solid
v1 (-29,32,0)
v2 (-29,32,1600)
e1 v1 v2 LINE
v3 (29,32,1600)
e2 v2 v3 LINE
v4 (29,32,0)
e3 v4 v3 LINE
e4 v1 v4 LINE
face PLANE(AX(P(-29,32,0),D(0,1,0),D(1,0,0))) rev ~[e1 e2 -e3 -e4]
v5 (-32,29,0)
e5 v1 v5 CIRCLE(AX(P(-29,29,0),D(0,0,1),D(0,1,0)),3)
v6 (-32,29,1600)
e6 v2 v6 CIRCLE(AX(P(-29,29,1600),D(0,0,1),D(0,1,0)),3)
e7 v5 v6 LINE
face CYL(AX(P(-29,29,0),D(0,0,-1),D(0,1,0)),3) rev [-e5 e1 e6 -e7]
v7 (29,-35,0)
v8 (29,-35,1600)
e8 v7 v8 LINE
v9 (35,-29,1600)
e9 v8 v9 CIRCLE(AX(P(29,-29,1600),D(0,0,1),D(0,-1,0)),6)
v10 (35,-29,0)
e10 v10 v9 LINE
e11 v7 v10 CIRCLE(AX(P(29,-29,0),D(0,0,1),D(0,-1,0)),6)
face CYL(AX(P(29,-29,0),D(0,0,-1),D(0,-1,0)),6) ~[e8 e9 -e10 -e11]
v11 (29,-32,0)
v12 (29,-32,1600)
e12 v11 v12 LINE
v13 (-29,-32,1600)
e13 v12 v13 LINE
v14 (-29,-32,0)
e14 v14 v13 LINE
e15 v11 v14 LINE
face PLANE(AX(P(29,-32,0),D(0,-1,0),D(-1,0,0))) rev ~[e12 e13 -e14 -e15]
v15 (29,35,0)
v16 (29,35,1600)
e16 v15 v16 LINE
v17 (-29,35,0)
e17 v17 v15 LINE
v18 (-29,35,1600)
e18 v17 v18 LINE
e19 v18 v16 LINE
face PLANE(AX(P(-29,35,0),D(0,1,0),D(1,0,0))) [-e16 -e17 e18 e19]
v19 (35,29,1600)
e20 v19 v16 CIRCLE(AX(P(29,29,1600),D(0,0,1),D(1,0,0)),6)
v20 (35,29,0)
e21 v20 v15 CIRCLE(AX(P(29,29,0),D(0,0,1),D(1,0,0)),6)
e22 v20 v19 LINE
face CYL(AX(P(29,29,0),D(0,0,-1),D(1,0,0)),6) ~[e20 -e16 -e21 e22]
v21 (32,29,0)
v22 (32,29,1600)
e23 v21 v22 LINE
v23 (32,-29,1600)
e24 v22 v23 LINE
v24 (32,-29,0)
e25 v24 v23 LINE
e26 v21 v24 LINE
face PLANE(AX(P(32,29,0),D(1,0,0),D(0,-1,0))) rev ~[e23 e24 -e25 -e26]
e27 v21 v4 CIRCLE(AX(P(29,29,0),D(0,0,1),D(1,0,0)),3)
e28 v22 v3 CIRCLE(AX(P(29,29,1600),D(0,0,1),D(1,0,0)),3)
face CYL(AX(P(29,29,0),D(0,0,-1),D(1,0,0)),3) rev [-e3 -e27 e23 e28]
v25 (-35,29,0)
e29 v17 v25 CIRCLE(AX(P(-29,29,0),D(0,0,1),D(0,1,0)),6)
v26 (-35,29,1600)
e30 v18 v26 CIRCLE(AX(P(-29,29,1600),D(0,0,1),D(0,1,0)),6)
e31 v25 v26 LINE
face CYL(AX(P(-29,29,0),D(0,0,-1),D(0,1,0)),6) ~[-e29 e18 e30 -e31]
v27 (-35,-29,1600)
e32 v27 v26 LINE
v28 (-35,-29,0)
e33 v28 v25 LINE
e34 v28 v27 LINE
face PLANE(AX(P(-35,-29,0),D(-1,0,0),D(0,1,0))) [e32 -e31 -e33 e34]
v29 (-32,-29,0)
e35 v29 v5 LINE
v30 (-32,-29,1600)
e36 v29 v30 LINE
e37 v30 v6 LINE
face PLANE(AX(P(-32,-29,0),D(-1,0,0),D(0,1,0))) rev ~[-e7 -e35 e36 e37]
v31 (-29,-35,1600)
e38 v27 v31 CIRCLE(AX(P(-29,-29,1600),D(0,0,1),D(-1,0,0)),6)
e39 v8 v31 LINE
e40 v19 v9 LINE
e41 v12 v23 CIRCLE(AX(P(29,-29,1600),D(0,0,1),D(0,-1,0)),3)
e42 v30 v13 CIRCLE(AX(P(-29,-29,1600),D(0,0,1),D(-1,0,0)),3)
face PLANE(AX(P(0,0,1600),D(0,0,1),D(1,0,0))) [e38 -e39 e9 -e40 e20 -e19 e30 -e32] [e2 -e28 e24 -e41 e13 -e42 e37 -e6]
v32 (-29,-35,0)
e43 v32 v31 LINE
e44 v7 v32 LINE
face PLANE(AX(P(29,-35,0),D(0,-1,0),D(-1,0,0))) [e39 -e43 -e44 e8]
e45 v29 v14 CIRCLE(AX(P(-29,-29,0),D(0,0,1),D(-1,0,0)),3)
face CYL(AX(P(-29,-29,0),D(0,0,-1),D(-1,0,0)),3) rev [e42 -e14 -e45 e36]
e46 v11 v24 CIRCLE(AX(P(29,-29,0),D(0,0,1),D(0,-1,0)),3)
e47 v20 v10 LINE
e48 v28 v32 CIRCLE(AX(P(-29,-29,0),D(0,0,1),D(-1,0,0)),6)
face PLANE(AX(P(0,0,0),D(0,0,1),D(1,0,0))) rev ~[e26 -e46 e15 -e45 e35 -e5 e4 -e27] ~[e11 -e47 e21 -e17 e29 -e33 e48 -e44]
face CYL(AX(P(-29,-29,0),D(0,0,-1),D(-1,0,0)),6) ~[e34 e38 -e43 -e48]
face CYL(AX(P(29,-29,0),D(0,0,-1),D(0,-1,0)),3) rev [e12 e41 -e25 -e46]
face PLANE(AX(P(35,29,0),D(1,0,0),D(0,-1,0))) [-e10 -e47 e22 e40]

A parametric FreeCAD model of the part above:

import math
import FreeCAD as App
import Part
import Sketcher

V = App.Vector

doc = App.newDocument("Part")
params = doc.addObject("Spreadsheet::Sheet", "Params")
for row, (alias, value) in enumerate([
    ("sketch1_radius", "6 mm"),
    ("sketch1_radius2", "3 mm"),
    ("pad1_length", "1600 mm"),
], start=1):
    params.set(f"A{row}", alias)
    params.set(f"B{row}", "=" + value)
    params.setAlias(f"B{row}", alias)

body = doc.addObject("PartDesign::Body", "Body")

# Sketch on XY plane
sketch1 = doc.addObject("Sketcher::SketchObject", "Sketch")
body.addObject(sketch1)
sketch1.AttachmentSupport = (doc.XY_Plane, [""])
sketch1.MapMode = "FlatFace"
sketch1.addGeometry(Part.LineSegment(V(-35, 29, 0), V(-35, -29, 0)), False)
sketch1.addGeometry(Part.ArcOfCircle(Part.Circle(V(-29, -29, 0), V(0, 0, 1), 6), math.radians(180), math.radians(270)), False)
sketch1.addGeometry(Part.LineSegment(V(-29, -35, 0), V(29, -35, 0)), False)
sketch1.addGeometry(Part.ArcOfCircle(Part.Circle(V(29, -29, 0), V(0, 0, 1), 6), math.radians(-90), math.radians(0)), False)
sketch1.addGeometry(Part.LineSegment(V(35, -29, 0), V(35, 29, 0)), False)
sketch1.addGeometry(Part.ArcOfCircle(Part.Circle(V(29, 29, 0), V(0, 0, 1), 6), math.radians(0), math.radians(90)), False)
sketch1.addGeometry(Part.LineSegment(V(29, 35, 0), V(-29, 35, 0)), False)
sketch1.addGeometry(Part.ArcOfCircle(Part.Circle(V(-29, 29, 0), V(0, 0, 1), 6), math.radians(90), math.radians(180)), False)
sketch1.addGeometry(Part.ArcOfCircle(Part.Circle(V(-29, 29, 0), V(0, 0, 1), 3), math.radians(90), math.radians(180)), False)
sketch1.addGeometry(Part.LineSegment(V(-29, 32, 0), V(29, 32, 0)), False)
sketch1.addGeometry(Part.ArcOfCircle(Part.Circle(V(29, 29, 0), V(0, 0, 1), 3), math.radians(0), math.radians(90)), False)
sketch1.addGeometry(Part.LineSegment(V(32, 29, 0), V(32, -29, 0)), False)
sketch1.addGeometry(Part.ArcOfCircle(Part.Circle(V(29, -29, 0), V(0, 0, 1), 3), math.radians(-90), math.radians(0)), False)
sketch1.addGeometry(Part.LineSegment(V(29, -32, 0), V(-29, -32, 0)), False)
sketch1.addGeometry(Part.ArcOfCircle(Part.Circle(V(-29, -29, 0), V(0, 0, 1), 3), math.radians(180), math.radians(270)), False)
sketch1.addGeometry(Part.LineSegment(V(-32, -29, 0), V(-32, 29, 0)), False)
sketch1.addConstraint(Sketcher.Constraint("Tangent", 0, 2, 1, 1))
sketch1.addConstraint(Sketcher.Constraint("Tangent", 1, 2, 2, 1))
sketch1.addConstraint(Sketcher.Constraint("Tangent", 2, 2, 3, 1))
sketch1.addConstraint(Sketcher.Constraint("Tangent", 3, 2, 4, 1))
sketch1.addConstraint(Sketcher.Constraint("Tangent", 4, 2, 5, 1))
sketch1.addConstraint(Sketcher.Constraint("Tangent", 5, 2, 6, 1))
sketch1.addConstraint(Sketcher.Constraint("Tangent", 6, 2, 7, 1))
sketch1.addConstraint(Sketcher.Constraint("Tangent", 7, 2, 0, 1))
sketch1.addConstraint(Sketcher.Constraint("Tangent", 8, 1, 9, 1))
sketch1.addConstraint(Sketcher.Constraint("Tangent", 9, 2, 10, 2))
sketch1.addConstraint(Sketcher.Constraint("Tangent", 10, 1, 11, 1))
sketch1.addConstraint(Sketcher.Constraint("Tangent", 11, 2, 12, 2))
sketch1.addConstraint(Sketcher.Constraint("Tangent", 12, 1, 13, 1))
sketch1.addConstraint(Sketcher.Constraint("Tangent", 13, 2, 14, 2))
sketch1.addConstraint(Sketcher.Constraint("Tangent", 14, 1, 15, 1))
sketch1.addConstraint(Sketcher.Constraint("Tangent", 15, 2, 8, 2))
sketch1.addConstraint(Sketcher.Constraint("Vertical", 0))
sketch1.addConstraint(Sketcher.Constraint("Horizontal", 2))
sketch1.addConstraint(Sketcher.Constraint("Vertical", 4))
sketch1.addConstraint(Sketcher.Constraint("Horizontal", 6))
sketch1.addConstraint(Sketcher.Constraint("Horizontal", 9))
sketch1.addConstraint(Sketcher.Constraint("Vertical", 11))
sketch1.addConstraint(Sketcher.Constraint("Horizontal", 13))
sketch1.addConstraint(Sketcher.Constraint("Vertical", 15))
sketch1.addConstraint(Sketcher.Constraint("Coincident", 8, 3, 7, 3))
sketch1.addConstraint(Sketcher.Constraint("Coincident", 10, 3, 5, 3))
sketch1.addConstraint(Sketcher.Constraint("Coincident", 12, 3, 3, 3))
sketch1.addConstraint(Sketcher.Constraint("Equal", 1, 3))
sketch1.addConstraint(Sketcher.Constraint("Equal", 3, 5))
sketch1.addConstraint(Sketcher.Constraint("Equal", 5, 7))
sketch1.addConstraint(Sketcher.Constraint("Equal", 12, 14))
sketch1.addConstraint(Sketcher.Constraint("Symmetric", 1, 3, 5, 3, -1, 1))
sketch1.addConstraint(Sketcher.Constraint("Equal", 13, 0))
sketch1.addConstraint(Sketcher.Constraint("Radius", 1, 6.0))
sketch1.addConstraint(Sketcher.Constraint("Radius", 8, 3.0))
sketch1.addConstraint(Sketcher.Constraint("DistanceX", 0, 2, -1, 1, 35.0))
sketch1.setExpression("Constraints[33]", "Params.sketch1_radius")
sketch1.setExpression("Constraints[34]", "Params.sketch1_radius2")
pad1 = doc.addObject("PartDesign::Pad", "Pad")
body.addObject(pad1)
pad1.Profile = sketch1
pad1.setExpression("Length", "Params.pad1_length")

doc.recompute()
